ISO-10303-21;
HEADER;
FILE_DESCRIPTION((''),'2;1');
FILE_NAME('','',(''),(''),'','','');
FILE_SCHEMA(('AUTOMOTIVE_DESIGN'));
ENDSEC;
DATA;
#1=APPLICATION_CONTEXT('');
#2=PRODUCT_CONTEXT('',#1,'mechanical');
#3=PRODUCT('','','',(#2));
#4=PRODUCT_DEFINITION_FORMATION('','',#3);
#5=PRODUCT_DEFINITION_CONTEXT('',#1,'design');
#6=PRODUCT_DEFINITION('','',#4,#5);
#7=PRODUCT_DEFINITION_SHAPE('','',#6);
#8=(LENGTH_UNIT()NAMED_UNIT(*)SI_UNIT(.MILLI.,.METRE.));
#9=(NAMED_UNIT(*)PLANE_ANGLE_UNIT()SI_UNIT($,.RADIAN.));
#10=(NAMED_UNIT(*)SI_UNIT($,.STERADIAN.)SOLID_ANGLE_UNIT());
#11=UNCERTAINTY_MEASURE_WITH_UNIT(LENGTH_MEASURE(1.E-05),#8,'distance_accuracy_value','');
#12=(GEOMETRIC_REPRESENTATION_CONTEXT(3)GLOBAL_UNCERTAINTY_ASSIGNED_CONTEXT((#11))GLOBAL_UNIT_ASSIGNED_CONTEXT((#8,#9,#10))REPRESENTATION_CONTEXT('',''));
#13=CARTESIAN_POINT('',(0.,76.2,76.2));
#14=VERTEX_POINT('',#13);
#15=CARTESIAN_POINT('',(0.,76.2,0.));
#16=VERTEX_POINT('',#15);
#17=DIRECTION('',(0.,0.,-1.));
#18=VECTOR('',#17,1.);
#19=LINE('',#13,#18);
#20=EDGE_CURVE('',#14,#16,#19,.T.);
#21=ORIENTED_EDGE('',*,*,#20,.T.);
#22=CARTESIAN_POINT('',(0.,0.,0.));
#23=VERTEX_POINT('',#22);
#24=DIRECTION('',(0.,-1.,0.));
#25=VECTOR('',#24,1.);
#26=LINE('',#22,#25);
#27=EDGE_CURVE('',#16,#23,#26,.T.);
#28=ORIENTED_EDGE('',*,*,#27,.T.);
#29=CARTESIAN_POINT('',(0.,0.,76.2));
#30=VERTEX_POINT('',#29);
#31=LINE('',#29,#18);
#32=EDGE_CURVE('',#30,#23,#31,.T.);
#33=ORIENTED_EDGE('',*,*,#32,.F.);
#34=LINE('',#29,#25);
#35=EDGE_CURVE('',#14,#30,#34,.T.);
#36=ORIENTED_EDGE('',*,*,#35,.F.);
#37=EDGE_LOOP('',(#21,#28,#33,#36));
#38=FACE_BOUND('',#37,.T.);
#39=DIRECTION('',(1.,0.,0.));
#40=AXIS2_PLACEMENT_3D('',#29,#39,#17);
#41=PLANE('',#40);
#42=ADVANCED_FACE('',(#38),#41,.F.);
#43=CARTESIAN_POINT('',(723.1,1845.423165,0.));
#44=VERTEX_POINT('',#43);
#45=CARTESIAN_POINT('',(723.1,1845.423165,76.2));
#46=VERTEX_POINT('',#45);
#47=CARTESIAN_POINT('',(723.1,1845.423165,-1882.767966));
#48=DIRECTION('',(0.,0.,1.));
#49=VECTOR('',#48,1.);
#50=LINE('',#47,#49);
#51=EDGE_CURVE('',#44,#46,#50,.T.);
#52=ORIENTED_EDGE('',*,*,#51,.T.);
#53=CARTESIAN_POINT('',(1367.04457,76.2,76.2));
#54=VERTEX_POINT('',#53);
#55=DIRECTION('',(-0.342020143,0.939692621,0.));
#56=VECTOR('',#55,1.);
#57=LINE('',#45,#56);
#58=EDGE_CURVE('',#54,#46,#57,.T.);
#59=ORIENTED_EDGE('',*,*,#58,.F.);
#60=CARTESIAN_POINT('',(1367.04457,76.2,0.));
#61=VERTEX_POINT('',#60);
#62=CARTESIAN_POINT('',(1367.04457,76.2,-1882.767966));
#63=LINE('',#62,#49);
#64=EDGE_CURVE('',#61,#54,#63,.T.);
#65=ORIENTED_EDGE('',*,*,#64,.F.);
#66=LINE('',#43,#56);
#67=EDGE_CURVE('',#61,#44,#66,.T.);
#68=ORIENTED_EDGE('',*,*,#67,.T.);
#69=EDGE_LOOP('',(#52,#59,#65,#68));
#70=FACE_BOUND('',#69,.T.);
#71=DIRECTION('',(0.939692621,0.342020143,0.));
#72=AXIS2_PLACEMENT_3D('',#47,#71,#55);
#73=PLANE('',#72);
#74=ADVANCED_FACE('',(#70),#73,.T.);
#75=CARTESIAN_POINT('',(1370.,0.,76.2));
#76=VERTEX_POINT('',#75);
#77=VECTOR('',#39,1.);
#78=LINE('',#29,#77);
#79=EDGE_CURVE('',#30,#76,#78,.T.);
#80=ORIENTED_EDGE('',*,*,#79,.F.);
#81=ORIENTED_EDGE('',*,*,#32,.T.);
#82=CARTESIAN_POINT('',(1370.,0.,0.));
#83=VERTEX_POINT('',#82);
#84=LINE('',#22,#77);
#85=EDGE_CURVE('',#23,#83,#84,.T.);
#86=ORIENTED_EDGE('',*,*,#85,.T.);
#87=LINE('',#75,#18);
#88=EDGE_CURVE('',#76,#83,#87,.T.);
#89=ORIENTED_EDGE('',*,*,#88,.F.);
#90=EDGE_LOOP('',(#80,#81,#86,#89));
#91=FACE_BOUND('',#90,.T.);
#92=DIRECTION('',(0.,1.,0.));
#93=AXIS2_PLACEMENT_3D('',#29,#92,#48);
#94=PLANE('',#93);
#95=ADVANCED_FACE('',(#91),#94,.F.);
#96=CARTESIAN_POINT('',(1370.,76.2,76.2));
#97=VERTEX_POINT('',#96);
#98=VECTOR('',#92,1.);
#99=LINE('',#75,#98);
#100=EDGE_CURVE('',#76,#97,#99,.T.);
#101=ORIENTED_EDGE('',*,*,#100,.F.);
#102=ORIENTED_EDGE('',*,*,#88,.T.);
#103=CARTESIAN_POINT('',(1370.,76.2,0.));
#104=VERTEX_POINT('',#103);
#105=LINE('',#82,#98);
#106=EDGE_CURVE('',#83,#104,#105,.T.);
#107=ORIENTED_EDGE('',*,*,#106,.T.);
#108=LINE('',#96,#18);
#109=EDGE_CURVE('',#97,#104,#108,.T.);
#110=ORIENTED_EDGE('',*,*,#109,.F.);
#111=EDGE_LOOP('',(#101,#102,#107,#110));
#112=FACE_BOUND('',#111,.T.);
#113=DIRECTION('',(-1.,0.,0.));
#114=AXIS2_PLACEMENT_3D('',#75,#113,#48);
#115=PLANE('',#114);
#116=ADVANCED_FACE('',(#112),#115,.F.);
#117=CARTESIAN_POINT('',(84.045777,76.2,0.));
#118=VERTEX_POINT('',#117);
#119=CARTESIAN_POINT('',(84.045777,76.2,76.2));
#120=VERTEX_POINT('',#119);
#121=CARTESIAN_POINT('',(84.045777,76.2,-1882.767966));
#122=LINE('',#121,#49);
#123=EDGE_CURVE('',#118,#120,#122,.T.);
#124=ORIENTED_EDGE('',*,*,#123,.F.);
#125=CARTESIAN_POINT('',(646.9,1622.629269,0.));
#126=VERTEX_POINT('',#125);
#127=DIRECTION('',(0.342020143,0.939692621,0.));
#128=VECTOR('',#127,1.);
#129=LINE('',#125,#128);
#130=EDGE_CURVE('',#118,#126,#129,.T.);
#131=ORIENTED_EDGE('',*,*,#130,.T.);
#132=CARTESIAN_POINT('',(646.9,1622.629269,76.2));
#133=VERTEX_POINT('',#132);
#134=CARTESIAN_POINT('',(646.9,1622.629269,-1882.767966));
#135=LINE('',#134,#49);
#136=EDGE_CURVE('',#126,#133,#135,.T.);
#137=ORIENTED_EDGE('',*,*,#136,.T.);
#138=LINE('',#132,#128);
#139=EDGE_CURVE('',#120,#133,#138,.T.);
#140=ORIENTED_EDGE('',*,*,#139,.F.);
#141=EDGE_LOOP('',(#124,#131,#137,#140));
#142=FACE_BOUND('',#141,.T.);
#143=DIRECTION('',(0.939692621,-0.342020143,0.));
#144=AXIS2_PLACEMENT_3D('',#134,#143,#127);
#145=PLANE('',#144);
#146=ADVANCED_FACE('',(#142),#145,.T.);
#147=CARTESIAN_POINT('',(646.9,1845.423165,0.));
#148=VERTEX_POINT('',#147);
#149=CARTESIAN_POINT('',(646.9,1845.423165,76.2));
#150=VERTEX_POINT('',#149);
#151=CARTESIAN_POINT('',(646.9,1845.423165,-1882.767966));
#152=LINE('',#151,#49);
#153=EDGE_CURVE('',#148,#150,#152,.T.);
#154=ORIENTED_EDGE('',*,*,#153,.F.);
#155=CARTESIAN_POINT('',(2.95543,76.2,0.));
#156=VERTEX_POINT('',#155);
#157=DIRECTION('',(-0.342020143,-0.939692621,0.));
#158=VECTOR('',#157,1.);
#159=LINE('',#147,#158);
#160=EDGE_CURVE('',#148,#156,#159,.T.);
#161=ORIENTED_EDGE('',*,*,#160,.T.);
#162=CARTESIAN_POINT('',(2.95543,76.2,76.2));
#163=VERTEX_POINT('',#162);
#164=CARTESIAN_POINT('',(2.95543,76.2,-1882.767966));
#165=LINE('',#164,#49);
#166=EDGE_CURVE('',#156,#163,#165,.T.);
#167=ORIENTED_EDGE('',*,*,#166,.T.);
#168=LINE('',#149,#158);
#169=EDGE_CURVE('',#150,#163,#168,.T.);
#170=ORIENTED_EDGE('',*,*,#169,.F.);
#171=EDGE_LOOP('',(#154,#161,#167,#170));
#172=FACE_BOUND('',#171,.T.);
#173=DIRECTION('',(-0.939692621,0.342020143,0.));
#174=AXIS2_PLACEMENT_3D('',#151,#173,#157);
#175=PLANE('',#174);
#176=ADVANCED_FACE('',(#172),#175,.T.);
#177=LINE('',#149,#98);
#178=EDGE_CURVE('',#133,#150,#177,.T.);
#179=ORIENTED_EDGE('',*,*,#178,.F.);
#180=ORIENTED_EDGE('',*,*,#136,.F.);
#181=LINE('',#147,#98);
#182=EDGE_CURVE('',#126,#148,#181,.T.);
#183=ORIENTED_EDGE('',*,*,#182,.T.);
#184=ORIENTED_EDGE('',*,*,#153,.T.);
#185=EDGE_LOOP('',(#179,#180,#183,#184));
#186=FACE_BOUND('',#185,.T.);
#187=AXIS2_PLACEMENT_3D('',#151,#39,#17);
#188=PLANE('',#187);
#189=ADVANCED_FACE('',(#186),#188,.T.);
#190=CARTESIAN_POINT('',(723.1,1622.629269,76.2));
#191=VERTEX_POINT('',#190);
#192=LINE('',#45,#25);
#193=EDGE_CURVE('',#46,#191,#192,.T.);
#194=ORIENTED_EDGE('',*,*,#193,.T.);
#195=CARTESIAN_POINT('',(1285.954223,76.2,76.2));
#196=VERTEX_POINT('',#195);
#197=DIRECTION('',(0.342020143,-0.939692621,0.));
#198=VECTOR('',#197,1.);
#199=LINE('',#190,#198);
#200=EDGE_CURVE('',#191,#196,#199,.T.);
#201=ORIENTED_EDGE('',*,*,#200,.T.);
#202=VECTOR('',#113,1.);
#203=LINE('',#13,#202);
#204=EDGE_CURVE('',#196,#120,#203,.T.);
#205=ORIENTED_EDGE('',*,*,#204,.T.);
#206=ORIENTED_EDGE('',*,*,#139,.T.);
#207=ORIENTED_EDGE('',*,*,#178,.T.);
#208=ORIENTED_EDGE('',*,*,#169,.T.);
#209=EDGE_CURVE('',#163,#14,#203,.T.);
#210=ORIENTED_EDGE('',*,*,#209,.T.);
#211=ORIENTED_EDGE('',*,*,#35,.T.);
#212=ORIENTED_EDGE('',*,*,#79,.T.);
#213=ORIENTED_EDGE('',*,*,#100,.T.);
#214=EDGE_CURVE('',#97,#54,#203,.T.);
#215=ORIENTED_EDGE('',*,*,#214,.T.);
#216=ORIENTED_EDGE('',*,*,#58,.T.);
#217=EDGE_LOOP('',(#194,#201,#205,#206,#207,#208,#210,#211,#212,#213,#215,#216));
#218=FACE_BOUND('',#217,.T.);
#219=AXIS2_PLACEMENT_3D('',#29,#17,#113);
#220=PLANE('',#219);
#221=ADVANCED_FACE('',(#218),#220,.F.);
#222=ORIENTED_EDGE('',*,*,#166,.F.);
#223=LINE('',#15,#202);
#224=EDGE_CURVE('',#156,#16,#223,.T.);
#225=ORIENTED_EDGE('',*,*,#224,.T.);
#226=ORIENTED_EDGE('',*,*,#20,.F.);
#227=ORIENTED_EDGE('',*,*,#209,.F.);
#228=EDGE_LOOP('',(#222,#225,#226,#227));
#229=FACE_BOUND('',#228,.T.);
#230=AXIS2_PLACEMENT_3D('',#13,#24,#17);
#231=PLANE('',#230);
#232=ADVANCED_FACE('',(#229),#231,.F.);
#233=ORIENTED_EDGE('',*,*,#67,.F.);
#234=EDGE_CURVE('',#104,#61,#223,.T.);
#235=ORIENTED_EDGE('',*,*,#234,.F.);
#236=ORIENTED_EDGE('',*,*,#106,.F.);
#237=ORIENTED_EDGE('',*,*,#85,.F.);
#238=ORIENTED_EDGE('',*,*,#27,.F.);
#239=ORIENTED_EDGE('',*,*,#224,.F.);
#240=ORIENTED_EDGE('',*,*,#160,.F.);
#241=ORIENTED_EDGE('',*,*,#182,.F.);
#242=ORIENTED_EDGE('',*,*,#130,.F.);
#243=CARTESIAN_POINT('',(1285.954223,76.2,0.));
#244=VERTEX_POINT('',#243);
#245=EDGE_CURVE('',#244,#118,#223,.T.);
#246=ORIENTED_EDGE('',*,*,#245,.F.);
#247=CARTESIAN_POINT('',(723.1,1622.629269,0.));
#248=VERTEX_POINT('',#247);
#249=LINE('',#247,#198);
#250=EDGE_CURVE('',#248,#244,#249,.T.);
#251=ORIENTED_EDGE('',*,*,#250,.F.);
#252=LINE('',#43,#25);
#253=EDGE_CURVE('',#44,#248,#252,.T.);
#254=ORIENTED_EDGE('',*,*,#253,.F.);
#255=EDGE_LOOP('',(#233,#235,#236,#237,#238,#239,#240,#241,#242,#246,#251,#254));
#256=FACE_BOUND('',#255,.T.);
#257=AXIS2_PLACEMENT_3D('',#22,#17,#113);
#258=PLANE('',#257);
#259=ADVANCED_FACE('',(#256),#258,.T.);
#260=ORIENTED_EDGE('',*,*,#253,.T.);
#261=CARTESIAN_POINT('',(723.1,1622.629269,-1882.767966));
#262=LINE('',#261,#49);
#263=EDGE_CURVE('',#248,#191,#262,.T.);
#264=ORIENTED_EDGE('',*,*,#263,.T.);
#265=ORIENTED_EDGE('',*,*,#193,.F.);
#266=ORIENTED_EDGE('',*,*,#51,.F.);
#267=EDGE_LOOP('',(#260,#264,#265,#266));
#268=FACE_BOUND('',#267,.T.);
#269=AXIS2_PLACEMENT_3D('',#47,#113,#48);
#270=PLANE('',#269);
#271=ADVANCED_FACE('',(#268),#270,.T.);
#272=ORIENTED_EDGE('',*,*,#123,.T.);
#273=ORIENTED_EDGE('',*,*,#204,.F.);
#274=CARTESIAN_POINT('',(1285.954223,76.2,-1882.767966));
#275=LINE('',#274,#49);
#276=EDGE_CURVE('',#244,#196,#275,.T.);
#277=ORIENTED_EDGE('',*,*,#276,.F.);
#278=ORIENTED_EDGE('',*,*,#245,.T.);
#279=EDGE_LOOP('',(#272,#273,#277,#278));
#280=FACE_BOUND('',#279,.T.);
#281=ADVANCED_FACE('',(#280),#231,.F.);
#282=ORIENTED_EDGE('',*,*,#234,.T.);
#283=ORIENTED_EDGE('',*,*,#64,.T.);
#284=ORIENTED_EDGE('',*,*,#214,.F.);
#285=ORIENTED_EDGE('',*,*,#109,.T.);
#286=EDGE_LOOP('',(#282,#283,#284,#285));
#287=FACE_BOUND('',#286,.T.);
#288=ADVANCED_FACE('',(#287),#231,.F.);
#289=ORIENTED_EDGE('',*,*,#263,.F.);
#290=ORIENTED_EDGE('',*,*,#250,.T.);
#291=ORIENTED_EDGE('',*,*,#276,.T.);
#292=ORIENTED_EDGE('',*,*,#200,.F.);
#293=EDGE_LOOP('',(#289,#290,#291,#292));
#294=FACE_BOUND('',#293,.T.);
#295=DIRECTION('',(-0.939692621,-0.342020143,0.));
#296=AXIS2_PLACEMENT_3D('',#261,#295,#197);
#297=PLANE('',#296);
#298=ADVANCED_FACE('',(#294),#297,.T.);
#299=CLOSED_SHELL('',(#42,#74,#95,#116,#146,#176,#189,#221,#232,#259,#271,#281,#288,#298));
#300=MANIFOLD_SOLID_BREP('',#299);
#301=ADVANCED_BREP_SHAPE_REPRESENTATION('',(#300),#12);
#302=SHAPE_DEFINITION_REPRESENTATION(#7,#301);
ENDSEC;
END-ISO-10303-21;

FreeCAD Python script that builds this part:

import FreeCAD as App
import Part
import Sketcher
from FreeCAD import Vector
Q = App.Units.Quantity

doc = App.newDocument("Part")
params = doc.addObject("Spreadsheet::Sheet", "Params")
for row, (alias, value) in enumerate([
    ("sketch1_width", "1370 mm"),
    ("sketch1_height", "76.2 mm"),
    ("pad1_length", "76.2 mm"),
    ("pad2_length", "76.2 mm"),
], start=1):
    params.set(f"A{row}", alias)
    params.set(f"B{row}", "=" + value)
    params.setAlias(f"B{row}", alias)

body = doc.addObject("PartDesign::Body", "Body")

# Sketch on XY plane
sketch1 = body.newObject("Sketcher::SketchObject", "Sketch")
sketch1.AttachmentSupport = (doc.getObject("XY_Plane"), [""])
sketch1.MapMode = "FlatFace"
sketch1.addGeometry(Part.LineSegment(Vector(0, 76, 0), Vector(0, 0, 0)), False)
sketch1.addGeometry(Part.LineSegment(Vector(0, 0, 0), Vector(1370, 0, 0)), False)
sketch1.addGeometry(Part.LineSegment(Vector(1370, 0, 0), Vector(1370, 76, 0)), False)
sketch1.addGeometry(Part.LineSegment(Vector(1370, 76, 0), Vector(0, 76, 0)), False)
sketch1.addConstraint(Sketcher.Constraint("Coincident", 0, 2, 1, 1))
sketch1.addConstraint(Sketcher.Constraint("Coincident", 1, 2, 2, 1))
sketch1.addConstraint(Sketcher.Constraint("Coincident", 2, 2, 3, 1))
sketch1.addConstraint(Sketcher.Constraint("Coincident", 3, 2, 0, 1))
sketch1.addConstraint(Sketcher.Constraint("Vertical", 0))
sketch1.addConstraint(Sketcher.Constraint("Horizontal", 1))
sketch1.addConstraint(Sketcher.Constraint("Vertical", 2))
sketch1.addConstraint(Sketcher.Constraint("Horizontal", 3))
sketch1.addConstraint(Sketcher.Constraint("Coincident", 0, 2, -1, 1))
sketch1.addConstraint(Sketcher.Constraint("DistanceX", 1, 1, 1, 2, 1370.0))
sketch1.addConstraint(Sketcher.Constraint("DistanceY", 0, 2, 0, 1, 76.2))
sketch1.setExpression("Constraints[9]", "Params.sketch1_width")
sketch1.setExpression("Constraints[10]", "Params.sketch1_height")
pad1 = body.newObject("PartDesign::Pad", "Pad")
pad1.Profile = sketch1
pad1.setExpression("Length", "Params.pad1_length")

# Sketch on XY plane
sketch2 = body.newObject("Sketcher::SketchObject", "Sketch001")
sketch2.AttachmentSupport = (doc.getObject("XY_Plane"), [""])
sketch2.MapMode = "FlatFace"
sketch2.AttachmentOffset = App.Placement(Vector(0, 0, 76.2), App.Rotation())
sketch2.addGeometry(Part.LineSegment(Vector(723, 1845, 0), Vector(723, 1623, 0)), False)
sketch2.addGeometry(Part.LineSegment(Vector(723, 1623, 0), Vector(1286, 76, 0)), False)
sketch2.addGeometry(Part.LineSegment(Vector(1286, 76, 0), Vector(1367, 76, 0)), False)
sketch2.addGeometry(Part.LineSegment(Vector(1367, 76, 0), Vector(723, 1845, 0)), False)
sketch2.addGeometry(Part.LineSegment(Vector(3, 76, 0), Vector(84, 76, 0)), False)
sketch2.addGeometry(Part.LineSegment(Vector(84, 76, 0), Vector(647, 1623, 0)), False)
sketch2.addGeometry(Part.LineSegment(Vector(647, 1623, 0), Vector(647, 1845, 0)), False)
sketch2.addGeometry(Part.LineSegment(Vector(647, 1845, 0), Vector(3, 76, 0)), False)
sketch2.addConstraint(Sketcher.Constraint("Coincident", 0, 2, 1, 1))
sketch2.addConstraint(Sketcher.Constraint("Coincident", 1, 2, 2, 1))
sketch2.addConstraint(Sketcher.Constraint("Coincident", 2, 2, 3, 1))
sketch2.addConstraint(Sketcher.Constraint("Coincident", 3, 2, 0, 1))
sketch2.addConstraint(Sketcher.Constraint("Coincident", 4, 2, 5, 1))
sketch2.addConstraint(Sketcher.Constraint("Coincident", 5, 2, 6, 1))
sketch2.addConstraint(Sketcher.Constraint("Coincident", 6, 2, 7, 1))
sketch2.addConstraint(Sketcher.Constraint("Coincident", 7, 2, 4, 1))
sketch2.addConstraint(Sketcher.Constraint("Vertical", 0))
sketch2.addConstraint(Sketcher.Constraint("Horizontal", 2))
sketch2.addConstraint(Sketcher.Constraint("Horizontal", 4))
sketch2.addConstraint(Sketcher.Constraint("Vertical", 6))
sketch2.addConstraint(Sketcher.Constraint("Parallel", 1, 3))
sketch2.addConstraint(Sketcher.Constraint("Parallel", 5, 7))
sketch2.addConstraint(Sketcher.Constraint("Horizontal", 2, 2, 4, 2))
sketch2.addConstraint(Sketcher.Constraint("Horizontal", 0, 2, 5, 2))
sketch2.addConstraint(Sketcher.Constraint("Horizontal", 3, 2, 6, 2))
sketch2.addConstraint(Sketcher.Constraint("Equal", 2, 4))
sketch2.addConstraint(Sketcher.Constraint("Angle", 1, Q("-70 deg")))
sketch2.addConstraint(Sketcher.Constraint("DistanceX", -1, 1, 0, 2, 723.1))
sketch2.addConstraint(Sketcher.Constraint("DistanceY", -1, 1, 1, 2, 76.2))
sketch2.addConstraint(Sketcher.Constraint("DistanceX", -1, 1, 5, 2, 646.9))
sketch2.addConstraint(Sketcher.Constraint("DistanceX", 2, 1, 2, 2, 81.090346))
sketch2.addConstraint(Sketcher.Constraint("DistanceY", -1, 1, 0, 2, 1622.629269))
pad2 = body.newObject("PartDesign::Pad", "Pad001")
pad2.Profile = sketch2
pad2.setExpression("Length", "Params.pad2_length")
pad2.Reversed = True

doc.recompute()
